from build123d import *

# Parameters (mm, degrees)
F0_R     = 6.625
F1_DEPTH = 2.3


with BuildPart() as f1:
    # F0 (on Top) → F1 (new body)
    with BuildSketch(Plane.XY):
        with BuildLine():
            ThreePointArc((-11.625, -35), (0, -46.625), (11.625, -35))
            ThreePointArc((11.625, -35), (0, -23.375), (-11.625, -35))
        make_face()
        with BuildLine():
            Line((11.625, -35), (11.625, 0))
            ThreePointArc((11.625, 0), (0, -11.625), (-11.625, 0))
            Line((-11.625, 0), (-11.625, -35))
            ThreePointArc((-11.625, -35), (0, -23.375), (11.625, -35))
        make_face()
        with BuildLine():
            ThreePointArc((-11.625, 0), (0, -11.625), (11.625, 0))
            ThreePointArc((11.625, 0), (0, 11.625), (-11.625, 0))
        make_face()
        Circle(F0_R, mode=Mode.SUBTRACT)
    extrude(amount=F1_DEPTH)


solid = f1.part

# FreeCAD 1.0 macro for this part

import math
import FreeCAD as App
import Part
import Sketcher
from FreeCAD import Vector

doc = App.newDocument("Part")
body = doc.addObject("PartDesign::Body", "Body")

sketch1 = body.newObject("Sketcher::SketchObject", "Sketch")
sketch1.AttachmentSupport = (doc.getObject("XY_Plane"), [""])
sketch1.MapMode = "FlatFace"
sketch1.addGeometry([
    Part.ArcOfCircle(Part.Circle(Vector(0, -35, 0), Vector(0, 0, 1), 12), math.radians(180), math.radians(360)),
    Part.LineSegment(Vector(12, -35, 0), Vector(12, 0, 0)),
    Part.ArcOfCircle(Part.Circle(Vector(0, 0, 0), Vector(0, 0, 1), 12), math.radians(0), math.radians(180)),
    Part.LineSegment(Vector(-12, 0, 0), Vector(-12, -35, 0)),
    Part.Circle(Vector(0, 0, 0), Vector(0, 0, 1), 7),
], False)
sketch1.addConstraint([
    Sketcher.Constraint("Tangent", 0, 2, 1, 1),
    Sketcher.Constraint("Tangent", 1, 2, 2, 1),
    Sketcher.Constraint("Tangent", 2, 2, 3, 1),
    Sketcher.Constraint("Tangent", 3, 2, 0, 1),
    Sketcher.Constraint("Vertical", 1),
    Sketcher.Constraint("Vertical", 3),
    Sketcher.Constraint("Coincident", 2, 3, -1, 1),
    Sketcher.Constraint("Coincident", 4, 3, -1, 1),
    Sketcher.Constraint("Diameter", 4, 13.25),
    Sketcher.Constraint("DistanceY", 1, 1, 1, 2, 35.0),
    Sketcher.Constraint("Radius", 0, 11.625),
])
pad1 = body.newObject("PartDesign::Pad", "Pad")
pad1.Profile = sketch1
pad1.Length = 2.3

doc.recompute()
